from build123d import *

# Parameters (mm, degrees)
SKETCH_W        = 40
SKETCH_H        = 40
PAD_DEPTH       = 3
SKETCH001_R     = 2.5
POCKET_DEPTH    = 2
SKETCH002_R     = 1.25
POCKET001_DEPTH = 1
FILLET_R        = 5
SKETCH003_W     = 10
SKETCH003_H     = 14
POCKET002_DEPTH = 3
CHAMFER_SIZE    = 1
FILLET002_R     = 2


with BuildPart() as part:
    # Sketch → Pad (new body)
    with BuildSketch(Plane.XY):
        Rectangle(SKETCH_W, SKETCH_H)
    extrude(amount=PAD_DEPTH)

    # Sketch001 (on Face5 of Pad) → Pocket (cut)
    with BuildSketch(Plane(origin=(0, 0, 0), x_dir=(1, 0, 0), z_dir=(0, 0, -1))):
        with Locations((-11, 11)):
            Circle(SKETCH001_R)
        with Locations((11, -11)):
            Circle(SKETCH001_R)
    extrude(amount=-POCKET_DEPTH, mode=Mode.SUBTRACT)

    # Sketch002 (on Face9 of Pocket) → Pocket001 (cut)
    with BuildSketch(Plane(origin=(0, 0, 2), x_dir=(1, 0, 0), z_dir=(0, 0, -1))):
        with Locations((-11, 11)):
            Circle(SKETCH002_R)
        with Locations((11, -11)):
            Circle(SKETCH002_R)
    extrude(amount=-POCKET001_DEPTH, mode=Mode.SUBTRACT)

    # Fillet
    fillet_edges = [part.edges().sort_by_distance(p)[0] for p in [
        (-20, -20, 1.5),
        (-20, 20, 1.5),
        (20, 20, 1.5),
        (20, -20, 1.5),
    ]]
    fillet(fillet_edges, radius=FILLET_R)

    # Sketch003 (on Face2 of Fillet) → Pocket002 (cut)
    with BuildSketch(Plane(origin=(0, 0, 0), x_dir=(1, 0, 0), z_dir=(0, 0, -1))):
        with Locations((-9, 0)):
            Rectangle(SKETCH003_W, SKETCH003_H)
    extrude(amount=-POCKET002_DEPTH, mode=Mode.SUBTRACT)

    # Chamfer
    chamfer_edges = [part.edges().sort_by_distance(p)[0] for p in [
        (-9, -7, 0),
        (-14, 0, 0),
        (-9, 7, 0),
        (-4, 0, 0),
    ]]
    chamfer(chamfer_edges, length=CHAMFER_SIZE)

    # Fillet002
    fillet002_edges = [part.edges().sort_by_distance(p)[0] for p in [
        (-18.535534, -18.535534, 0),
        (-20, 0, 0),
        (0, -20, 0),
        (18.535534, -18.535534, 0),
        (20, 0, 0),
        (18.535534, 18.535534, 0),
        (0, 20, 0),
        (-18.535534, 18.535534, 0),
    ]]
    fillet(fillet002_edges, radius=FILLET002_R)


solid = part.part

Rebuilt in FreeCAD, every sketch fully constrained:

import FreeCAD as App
import Part
import Sketcher

V = App.Vector


def edges_at(feature, points):
    """Names of the edges that pass closest to the given points."""
    edges = feature.Shape.Edges
    near = lambda p: min(range(len(edges)), key=lambda i: edges[i].distToShape(Part.Vertex(*p))[0])
    return sorted({f"Edge{near(p) + 1}" for p in points})

doc = App.newDocument("Part")
body = doc.addObject("PartDesign::Body", "Body")

sketch1 = doc.addObject("Sketcher::SketchObject", "Sketch")
body.addObject(sketch1)
sketch1.AttachmentSupport = (doc.XY_Plane, [""])
sketch1.MapMode = "FlatFace"
sketch1.addGeometry([
    Part.LineSegment(V(-20, 20, 0), V(-20, -20, 0)),
    Part.LineSegment(V(-20, -20, 0), V(20, -20, 0)),
    Part.LineSegment(V(20, -20, 0), V(20, 20, 0)),
    Part.LineSegment(V(20, 20, 0), V(-20, 20, 0)),
], False)
sketch1.addConstraint([
    Sketcher.Constraint("Coincident", 0, 2, 1, 1),
    Sketcher.Constraint("Coincident", 1, 2, 2, 1),
    Sketcher.Constraint("Coincident", 2, 2, 3, 1),
    Sketcher.Constraint("Coincident", 3, 2, 0, 1),
    Sketcher.Constraint("Vertical", 0),
    Sketcher.Constraint("Horizontal", 1),
    Sketcher.Constraint("Vertical", 2),
    Sketcher.Constraint("Horizontal", 3),
    Sketcher.Constraint("Symmetric", 0, 2, 2, 2, -1, 1),
    Sketcher.Constraint("Equal", 3, 0),
    Sketcher.Constraint("DistanceX", 1, 1, 1, 2, 40.0),
])
pad1 = doc.addObject("PartDesign::Pad", "Pad")
body.addObject(pad1)
pad1.Profile = sketch1
pad1.Length = 3

sketch2 = doc.addObject("Sketcher::SketchObject", "Sketch001")
body.addObject(sketch2)
sketch2.AttachmentSupport = (doc.XY_Plane, [""])
sketch2.MapMode = "FlatFace"
sketch2.addGeometry([
    Part.Circle(V(-11, -11, 0), V(0, 0, 1), 2.5),
    Part.Circle(V(11, 11, 0), V(0, 0, 1), 2.5),
], False)
sketch2.addConstraint([
    Sketcher.Constraint("Equal", 0, 1),
    Sketcher.Constraint("Symmetric", 0, 3, 1, 3, -1, 1),
    Sketcher.Constraint("Diameter", 0, 5.0),
    Sketcher.Constraint("DistanceX", 0, 3, -1, 1, 11.0),
    Sketcher.Constraint("DistanceY", 0, 3, -1, 1, 11.0),
])
pocket1 = doc.addObject("PartDesign::Pocket", "Pocket")
body.addObject(pocket1)
pocket1.Profile = sketch2
pocket1.Length = 2
pocket1.Reversed = True

sketch3 = doc.addObject("Sketcher::SketchObject", "Sketch002")
body.addObject(sketch3)
sketch3.AttachmentSupport = (doc.XY_Plane, [""])
sketch3.MapMode = "FlatFace"
sketch3.AttachmentOffset = App.Placement(V(0, 0, 2), App.Rotation())
sketch3.addGeometry([
    Part.Circle(V(-11, -11, 0), V(0, 0, 1), 1.2),
    Part.Circle(V(11, 11, 0), V(0, 0, 1), 1.2),
], False)
sketch3.addConstraint([
    Sketcher.Constraint("Equal", 0, 1),
    Sketcher.Constraint("Symmetric", 0, 3, 1, 3, -1, 1),
    Sketcher.Constraint("Diameter", 0, 2.5),
    Sketcher.Constraint("DistanceX", 0, 3, -1, 1, 11.0),
    Sketcher.Constraint("DistanceY", 0, 3, -1, 1, 11.0),
])
pocket2 = doc.addObject("PartDesign::Pocket", "Pocket001")
body.addObject(pocket2)
pocket2.Profile = sketch3
pocket2.Length = 1
pocket2.Reversed = True
doc.recompute()

fillet = doc.addObject("PartDesign::Fillet", "Fillet")
body.addObject(fillet)
fillet.Base = (pocket2, edges_at(pocket2, [
    (-20, -20, 1.5),
    (-20, 20, 1.5),
    (20, 20, 1.5),
    (20, -20, 1.5),
]))
fillet.Radius = 5

sketch4 = doc.addObject("Sketcher::SketchObject", "Sketch003")
body.addObject(sketch4)
sketch4.AttachmentSupport = (doc.XY_Plane, [""])
sketch4.MapMode = "FlatFace"
sketch4.addGeometry([
    Part.LineSegment(V(-14, -7, 0), V(-14, 7, 0)),
    Part.LineSegment(V(-14, 7, 0), V(-4, 7, 0)),
    Part.LineSegment(V(-4, 7, 0), V(-4, -7, 0)),
    Part.LineSegment(V(-4, -7, 0), V(-14, -7, 0)),
], False)
sketch4.addConstraint([
    Sketcher.Constraint("Coincident", 0, 2, 1, 1),
    Sketcher.Constraint("Coincident", 1, 2, 2, 1),
    Sketcher.Constraint("Coincident", 2, 2, 3, 1),
    Sketcher.Constraint("Coincident", 3, 2, 0, 1),
    Sketcher.Constraint("Vertical", 0),
    Sketcher.Constraint("Horizontal", 1),
    Sketcher.Constraint("Vertical", 2),
    Sketcher.Constraint("Horizontal", 3),
    Sketcher.Constraint("DistanceX", 1, 1, 1, 2, 10.0),
    Sketcher.Constraint("DistanceY", 0, 1, 0, 2, 14.0),
    Sketcher.Constraint("DistanceX", 0, 2, -1, 1, 14.0),
    Sketcher.Constraint("DistanceY", -1, 1, 0, 2, 7.0),
])
pocket3 = doc.addObject("PartDesign::Pocket", "Pocket002")
body.addObject(pocket3)
pocket3.Profile = sketch4
pocket3.Length = 3
pocket3.Reversed = True
doc.recompute()

chamfer = doc.addObject("PartDesign::Chamfer", "Chamfer")
body.addObject(chamfer)
chamfer.Base = (pocket3, edges_at(pocket3, [
    (-9, -7, 0),
    (-14, 0, 0),
    (-9, 7, 0),
    (-4, 0, 0),
]))
chamfer.Size = 1
doc.recompute()

fillet2 = doc.addObject("PartDesign::Fillet", "Fillet001")
body.addObject(fillet2)
fillet2.Base = (chamfer, edges_at(chamfer, [
    (-18.536, -18.536, 0),
    (-20, 0, 0),
    (0, -20, 0),
    (18.536, -18.536, 0),
    (20, 0, 0),
    (18.536, 18.536, 0),
    (0, 20, 0),
    (-18.536, 18.536, 0),
]))
fillet2.Radius = 2

doc.recompute()
